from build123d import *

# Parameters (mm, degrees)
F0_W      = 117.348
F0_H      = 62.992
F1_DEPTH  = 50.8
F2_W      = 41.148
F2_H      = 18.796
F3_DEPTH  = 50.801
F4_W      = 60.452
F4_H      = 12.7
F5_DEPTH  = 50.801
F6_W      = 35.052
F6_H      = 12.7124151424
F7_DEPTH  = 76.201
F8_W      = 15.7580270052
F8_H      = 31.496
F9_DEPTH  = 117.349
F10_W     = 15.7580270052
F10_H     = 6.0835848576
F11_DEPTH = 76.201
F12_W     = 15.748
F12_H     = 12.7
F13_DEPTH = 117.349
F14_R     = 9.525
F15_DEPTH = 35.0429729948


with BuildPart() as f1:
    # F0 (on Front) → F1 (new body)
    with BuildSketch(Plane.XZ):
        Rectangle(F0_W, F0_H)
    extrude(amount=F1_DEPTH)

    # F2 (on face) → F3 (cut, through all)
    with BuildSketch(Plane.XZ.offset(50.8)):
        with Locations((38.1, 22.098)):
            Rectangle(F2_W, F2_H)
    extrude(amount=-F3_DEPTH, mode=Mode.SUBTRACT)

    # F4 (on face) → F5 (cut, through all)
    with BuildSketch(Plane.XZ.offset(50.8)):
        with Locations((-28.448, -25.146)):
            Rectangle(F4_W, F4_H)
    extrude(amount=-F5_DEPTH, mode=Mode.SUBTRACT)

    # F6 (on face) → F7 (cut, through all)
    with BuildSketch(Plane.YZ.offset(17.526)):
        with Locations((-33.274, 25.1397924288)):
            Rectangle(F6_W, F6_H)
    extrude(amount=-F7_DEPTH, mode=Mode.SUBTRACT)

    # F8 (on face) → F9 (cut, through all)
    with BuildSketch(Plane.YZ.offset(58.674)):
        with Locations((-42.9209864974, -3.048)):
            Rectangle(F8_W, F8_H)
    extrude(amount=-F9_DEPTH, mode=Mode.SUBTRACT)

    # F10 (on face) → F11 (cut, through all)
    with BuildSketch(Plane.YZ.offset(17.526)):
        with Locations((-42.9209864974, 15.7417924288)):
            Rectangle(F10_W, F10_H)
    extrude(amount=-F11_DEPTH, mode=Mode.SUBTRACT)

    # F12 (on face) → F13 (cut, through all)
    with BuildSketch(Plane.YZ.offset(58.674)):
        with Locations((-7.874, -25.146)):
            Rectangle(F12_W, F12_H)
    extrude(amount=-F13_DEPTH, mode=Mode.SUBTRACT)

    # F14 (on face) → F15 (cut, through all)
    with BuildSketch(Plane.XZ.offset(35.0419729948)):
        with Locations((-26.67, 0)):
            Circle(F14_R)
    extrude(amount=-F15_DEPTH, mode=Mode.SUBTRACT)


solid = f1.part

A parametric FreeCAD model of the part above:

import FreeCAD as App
import Part
import Sketcher
from FreeCAD import Vector
Q = App.Units.Quantity


def add_polygon(sketch, points):
    """Adds a closed chain of lines whose ends are joined by coincident constraints."""
    first, n = sketch.GeometryCount, len(points)
    for a, b in zip(points, points[1:] + points[:1]):
        sketch.addGeometry(Part.LineSegment(App.Vector(*a, 0), App.Vector(*b, 0)), False)
    for i in range(n):
        sketch.addConstraint(Sketcher.Constraint("Coincident", first + i, 2, first + (i + 1) % n, 1))

doc = App.newDocument("Part")
body = doc.addObject("PartDesign::Body", "Body")

# Sketch on XZ plane
sketch1 = body.newObject("Sketcher::SketchObject", "Sketch")
sketch1.AttachmentSupport = (doc.getObject("XZ_Plane"), [""])
sketch1.MapMode = "FlatFace"
add_polygon(sketch1, [(-59, 31), (-59, -31), (59, -31), (59, 31)])  # lines 0-3
sketch1.addConstraint([
    Sketcher.Constraint("Vertical", 0),
    Sketcher.Constraint("Horizontal", 1),
    Sketcher.Constraint("Vertical", 2),
    Sketcher.Constraint("Horizontal", 3),
    Sketcher.Constraint("Symmetric", 0, 2, 2, 2, -1, 1),
    Sketcher.Constraint("DistanceX", 1, 1, 1, 2, Q("4.62 in")),
    Sketcher.Constraint("DistanceY", 0, 2, 0, 1, Q("2.48 in")),
])
pad1 = body.newObject("PartDesign::Pad", "Pad")
pad1.Profile = sketch1
pad1.Length = Q("2 in")

# Sketch on XZ plane
sketch2 = body.newObject("Sketcher::SketchObject", "Sketch001")
sketch2.AttachmentSupport = (doc.getObject("XZ_Plane"), [""])
sketch2.MapMode = "FlatFace"
sketch2.AttachmentOffset = App.Placement(Vector(0, 0, 2 * 25.4), App.Rotation())
add_polygon(sketch2, [(18, 31), (18, 13), (59, 13), (59, 31)])  # lines 0-3
sketch2.addConstraint([
    Sketcher.Constraint("Vertical", 0),
    Sketcher.Constraint("Horizontal", 1),
    Sketcher.Constraint("Vertical", 2),
    Sketcher.Constraint("Horizontal", 3),
    Sketcher.Constraint("DistanceX", 1, 1, 1, 2, Q("1.62 in")),
    Sketcher.Constraint("DistanceY", 0, 2, 0, 1, Q("0.74 in")),
    Sketcher.Constraint("DistanceY", -1, 1, 0, 2, Q("0.5 in")),
    Sketcher.Constraint("DistanceX", -1, 1, 0, 2, Q("0.69 in")),
])
pocket1 = body.newObject("PartDesign::Pocket", "Pocket")
pocket1.Profile = sketch2
pocket1.Type = "ThroughAll"

# Sketch on XZ plane
sketch3 = body.newObject("Sketcher::SketchObject", "Sketch002")
sketch3.AttachmentSupport = (doc.getObject("XZ_Plane"), [""])
sketch3.MapMode = "FlatFace"
sketch3.AttachmentOffset = App.Placement(Vector(0, 0, 2 * 25.4), App.Rotation())
add_polygon(sketch3, [(-59, -19), (-59, -31), (2, -31), (2, -19)])  # lines 0-3
sketch3.addConstraint([
    Sketcher.Constraint("Vertical", 0),
    Sketcher.Constraint("Horizontal", 1),
    Sketcher.Constraint("Vertical", 2),
    Sketcher.Constraint("Horizontal", 3),
    Sketcher.Constraint("DistanceY", 0, 2, 0, 1, Q("0.5 in")),
    Sketcher.Constraint("DistanceX", 1, 1, 1, 2, Q("2.38 in")),
    Sketcher.Constraint("DistanceX", 0, 2, -1, 1, Q("2.31 in")),
    Sketcher.Constraint("DistanceY", 0, 2, -1, 1, Q("1.24 in")),
])
pocket2 = body.newObject("PartDesign::Pocket", "Pocket001")
pocket2.Profile = sketch3
pocket2.Type = "ThroughAll"

# Sketch on YZ plane
sketch4 = body.newObject("Sketcher::SketchObject", "Sketch003")
sketch4.AttachmentSupport = (doc.getObject("YZ_Plane"), [""])
sketch4.MapMode = "FlatFace"
sketch4.AttachmentOffset = App.Placement(Vector(0, 0, 0.69 * 25.4), App.Rotation())
add_polygon(sketch4, [(-51, 31), (-51, 19), (-16, 19), (-16, 31)])  # lines 0-3
sketch4.addConstraint([
    Sketcher.Constraint("Vertical", 0),
    Sketcher.Constraint("Horizontal", 1),
    Sketcher.Constraint("Vertical", 2),
    Sketcher.Constraint("Horizontal", 3),
    Sketcher.Constraint("DistanceX", 0, 2, -1, 1, Q("2 in")),
    Sketcher.Constraint("DistanceX", 1, 1, 1, 2, Q("1.38 in")),
    Sketcher.Constraint("DistanceY", -1, 1, 2, 2, Q("1.24 in")),
    Sketcher.Constraint("DistanceY", 0, 2, 0, 1, 12.712415),
])
pocket3 = body.newObject("PartDesign::Pocket", "Pocket002")
pocket3.Profile = sketch4
pocket3.Type = "ThroughAll"

# Sketch on YZ plane
sketch5 = body.newObject("Sketcher::SketchObject", "Sketch004")
sketch5.AttachmentSupport = (doc.getObject("YZ_Plane"), [""])
sketch5.MapMode = "FlatFace"
sketch5.AttachmentOffset = App.Placement(Vector(0, 0, 2.31 * 25.4), App.Rotation())
add_polygon(sketch5, [(-51, 13), (-51, -19), (-35, -19), (-35, 13)])  # lines 0-3
sketch5.addConstraint([
    Sketcher.Constraint("Vertical", 0),
    Sketcher.Constraint("Horizontal", 1),
    Sketcher.Constraint("Vertical", 2),
    Sketcher.Constraint("Horizontal", 3),
    Sketcher.Constraint("DistanceX", 0, 2, -1, 1, Q("2 in")),
    Sketcher.Constraint("DistanceY", 0, 2, 0, 1, Q("1.24 in")),
    Sketcher.Constraint("DistanceY", -1, 1, 2, 2, Q("0.5 in")),
    Sketcher.Constraint("DistanceX", 1, 1, 1, 2, 15.758027),
])
pocket4 = body.newObject("PartDesign::Pocket", "Pocket003")
pocket4.Profile = sketch5
pocket4.Type = "ThroughAll"

# Sketch on YZ plane
sketch6 = body.newObject("Sketcher::SketchObject", "Sketch005")
sketch6.AttachmentSupport = (doc.getObject("YZ_Plane"), [""])
sketch6.MapMode = "FlatFace"
sketch6.AttachmentOffset = App.Placement(Vector(0, 0, 0.69 * 25.4), App.Rotation())
add_polygon(sketch6, [(-51, 19), (-51, 13), (-35, 13), (-35, 19)])  # lines 0-3
sketch6.addConstraint([
    Sketcher.Constraint("Vertical", 0),
    Sketcher.Constraint("Horizontal", 1),
    Sketcher.Constraint("Vertical", 2),
    Sketcher.Constraint("Horizontal", 3),
    Sketcher.Constraint("DistanceX", 0, 2, -1, 1, Q("2 in")),
    Sketcher.Constraint("DistanceY", -1, 1, 0, 2, Q("0.5 in")),
    Sketcher.Constraint("DistanceX", 1, 1, 1, 2, 15.758027),
    Sketcher.Constraint("DistanceY", 0, 2, 0, 1, 6.083585),
])
pocket5 = body.newObject("PartDesign::Pocket", "Pocket004")
pocket5.Profile = sketch6
pocket5.Type = "ThroughAll"

# Sketch on YZ plane
sketch7 = body.newObject("Sketcher::SketchObject", "Sketch006")
sketch7.AttachmentSupport = (doc.getObject("YZ_Plane"), [""])
sketch7.MapMode = "FlatFace"
sketch7.AttachmentOffset = App.Placement(Vector(0, 0, 2.31 * 25.4), App.Rotation())
add_polygon(sketch7, [(-16, -19), (-16, -31), (0, -31), (0, -19)])  # lines 0-3
sketch7.addConstraint([
    Sketcher.Constraint("Vertical", 0),
    Sketcher.Constraint("Horizontal", 1),
    Sketcher.Constraint("Vertical", 2),
    Sketcher.Constraint("Horizontal", 3),
    Sketcher.Constraint("PointOnObject", 1, 2, -2),
    Sketcher.Constraint("DistanceY", 0, 2, 0, 1, Q("0.5 in")),
    Sketcher.Constraint("DistanceX", 1, 1, 1, 2, Q("0.62 in")),
    Sketcher.Constraint("DistanceY", 0, 2, -1, 1, Q("1.24 in")),
])
pocket6 = body.newObject("PartDesign::Pocket", "Pocket005")
pocket6.Profile = sketch7
pocket6.Type = "ThroughAll"

# Sketch on XZ plane
sketch8 = body.newObject("Sketcher::SketchObject", "Sketch007")
sketch8.AttachmentSupport = (doc.getObject("XZ_Plane"), [""])
sketch8.MapMode = "FlatFace"
sketch8.AttachmentOffset = App.Placement(Vector(0, 0, 35.041973), App.Rotation())
sketch8.addGeometry(Part.Circle(Vector(-27, 0, 0), Vector(0, 0, 1), 10), False)
sketch8.addConstraint([
    Sketcher.Constraint("PointOnObject", 0, 3, -1),
    Sketcher.Constraint("Diameter", 0, Q("0.75 in")),
    Sketcher.Constraint("DistanceX", 0, 3, -1, 1, Q("1.05 in")),
])
pocket7 = body.newObject("PartDesign::Pocket", "Pocket006")
pocket7.Profile = sketch8
pocket7.Type = "ThroughAll"

doc.recompute()
